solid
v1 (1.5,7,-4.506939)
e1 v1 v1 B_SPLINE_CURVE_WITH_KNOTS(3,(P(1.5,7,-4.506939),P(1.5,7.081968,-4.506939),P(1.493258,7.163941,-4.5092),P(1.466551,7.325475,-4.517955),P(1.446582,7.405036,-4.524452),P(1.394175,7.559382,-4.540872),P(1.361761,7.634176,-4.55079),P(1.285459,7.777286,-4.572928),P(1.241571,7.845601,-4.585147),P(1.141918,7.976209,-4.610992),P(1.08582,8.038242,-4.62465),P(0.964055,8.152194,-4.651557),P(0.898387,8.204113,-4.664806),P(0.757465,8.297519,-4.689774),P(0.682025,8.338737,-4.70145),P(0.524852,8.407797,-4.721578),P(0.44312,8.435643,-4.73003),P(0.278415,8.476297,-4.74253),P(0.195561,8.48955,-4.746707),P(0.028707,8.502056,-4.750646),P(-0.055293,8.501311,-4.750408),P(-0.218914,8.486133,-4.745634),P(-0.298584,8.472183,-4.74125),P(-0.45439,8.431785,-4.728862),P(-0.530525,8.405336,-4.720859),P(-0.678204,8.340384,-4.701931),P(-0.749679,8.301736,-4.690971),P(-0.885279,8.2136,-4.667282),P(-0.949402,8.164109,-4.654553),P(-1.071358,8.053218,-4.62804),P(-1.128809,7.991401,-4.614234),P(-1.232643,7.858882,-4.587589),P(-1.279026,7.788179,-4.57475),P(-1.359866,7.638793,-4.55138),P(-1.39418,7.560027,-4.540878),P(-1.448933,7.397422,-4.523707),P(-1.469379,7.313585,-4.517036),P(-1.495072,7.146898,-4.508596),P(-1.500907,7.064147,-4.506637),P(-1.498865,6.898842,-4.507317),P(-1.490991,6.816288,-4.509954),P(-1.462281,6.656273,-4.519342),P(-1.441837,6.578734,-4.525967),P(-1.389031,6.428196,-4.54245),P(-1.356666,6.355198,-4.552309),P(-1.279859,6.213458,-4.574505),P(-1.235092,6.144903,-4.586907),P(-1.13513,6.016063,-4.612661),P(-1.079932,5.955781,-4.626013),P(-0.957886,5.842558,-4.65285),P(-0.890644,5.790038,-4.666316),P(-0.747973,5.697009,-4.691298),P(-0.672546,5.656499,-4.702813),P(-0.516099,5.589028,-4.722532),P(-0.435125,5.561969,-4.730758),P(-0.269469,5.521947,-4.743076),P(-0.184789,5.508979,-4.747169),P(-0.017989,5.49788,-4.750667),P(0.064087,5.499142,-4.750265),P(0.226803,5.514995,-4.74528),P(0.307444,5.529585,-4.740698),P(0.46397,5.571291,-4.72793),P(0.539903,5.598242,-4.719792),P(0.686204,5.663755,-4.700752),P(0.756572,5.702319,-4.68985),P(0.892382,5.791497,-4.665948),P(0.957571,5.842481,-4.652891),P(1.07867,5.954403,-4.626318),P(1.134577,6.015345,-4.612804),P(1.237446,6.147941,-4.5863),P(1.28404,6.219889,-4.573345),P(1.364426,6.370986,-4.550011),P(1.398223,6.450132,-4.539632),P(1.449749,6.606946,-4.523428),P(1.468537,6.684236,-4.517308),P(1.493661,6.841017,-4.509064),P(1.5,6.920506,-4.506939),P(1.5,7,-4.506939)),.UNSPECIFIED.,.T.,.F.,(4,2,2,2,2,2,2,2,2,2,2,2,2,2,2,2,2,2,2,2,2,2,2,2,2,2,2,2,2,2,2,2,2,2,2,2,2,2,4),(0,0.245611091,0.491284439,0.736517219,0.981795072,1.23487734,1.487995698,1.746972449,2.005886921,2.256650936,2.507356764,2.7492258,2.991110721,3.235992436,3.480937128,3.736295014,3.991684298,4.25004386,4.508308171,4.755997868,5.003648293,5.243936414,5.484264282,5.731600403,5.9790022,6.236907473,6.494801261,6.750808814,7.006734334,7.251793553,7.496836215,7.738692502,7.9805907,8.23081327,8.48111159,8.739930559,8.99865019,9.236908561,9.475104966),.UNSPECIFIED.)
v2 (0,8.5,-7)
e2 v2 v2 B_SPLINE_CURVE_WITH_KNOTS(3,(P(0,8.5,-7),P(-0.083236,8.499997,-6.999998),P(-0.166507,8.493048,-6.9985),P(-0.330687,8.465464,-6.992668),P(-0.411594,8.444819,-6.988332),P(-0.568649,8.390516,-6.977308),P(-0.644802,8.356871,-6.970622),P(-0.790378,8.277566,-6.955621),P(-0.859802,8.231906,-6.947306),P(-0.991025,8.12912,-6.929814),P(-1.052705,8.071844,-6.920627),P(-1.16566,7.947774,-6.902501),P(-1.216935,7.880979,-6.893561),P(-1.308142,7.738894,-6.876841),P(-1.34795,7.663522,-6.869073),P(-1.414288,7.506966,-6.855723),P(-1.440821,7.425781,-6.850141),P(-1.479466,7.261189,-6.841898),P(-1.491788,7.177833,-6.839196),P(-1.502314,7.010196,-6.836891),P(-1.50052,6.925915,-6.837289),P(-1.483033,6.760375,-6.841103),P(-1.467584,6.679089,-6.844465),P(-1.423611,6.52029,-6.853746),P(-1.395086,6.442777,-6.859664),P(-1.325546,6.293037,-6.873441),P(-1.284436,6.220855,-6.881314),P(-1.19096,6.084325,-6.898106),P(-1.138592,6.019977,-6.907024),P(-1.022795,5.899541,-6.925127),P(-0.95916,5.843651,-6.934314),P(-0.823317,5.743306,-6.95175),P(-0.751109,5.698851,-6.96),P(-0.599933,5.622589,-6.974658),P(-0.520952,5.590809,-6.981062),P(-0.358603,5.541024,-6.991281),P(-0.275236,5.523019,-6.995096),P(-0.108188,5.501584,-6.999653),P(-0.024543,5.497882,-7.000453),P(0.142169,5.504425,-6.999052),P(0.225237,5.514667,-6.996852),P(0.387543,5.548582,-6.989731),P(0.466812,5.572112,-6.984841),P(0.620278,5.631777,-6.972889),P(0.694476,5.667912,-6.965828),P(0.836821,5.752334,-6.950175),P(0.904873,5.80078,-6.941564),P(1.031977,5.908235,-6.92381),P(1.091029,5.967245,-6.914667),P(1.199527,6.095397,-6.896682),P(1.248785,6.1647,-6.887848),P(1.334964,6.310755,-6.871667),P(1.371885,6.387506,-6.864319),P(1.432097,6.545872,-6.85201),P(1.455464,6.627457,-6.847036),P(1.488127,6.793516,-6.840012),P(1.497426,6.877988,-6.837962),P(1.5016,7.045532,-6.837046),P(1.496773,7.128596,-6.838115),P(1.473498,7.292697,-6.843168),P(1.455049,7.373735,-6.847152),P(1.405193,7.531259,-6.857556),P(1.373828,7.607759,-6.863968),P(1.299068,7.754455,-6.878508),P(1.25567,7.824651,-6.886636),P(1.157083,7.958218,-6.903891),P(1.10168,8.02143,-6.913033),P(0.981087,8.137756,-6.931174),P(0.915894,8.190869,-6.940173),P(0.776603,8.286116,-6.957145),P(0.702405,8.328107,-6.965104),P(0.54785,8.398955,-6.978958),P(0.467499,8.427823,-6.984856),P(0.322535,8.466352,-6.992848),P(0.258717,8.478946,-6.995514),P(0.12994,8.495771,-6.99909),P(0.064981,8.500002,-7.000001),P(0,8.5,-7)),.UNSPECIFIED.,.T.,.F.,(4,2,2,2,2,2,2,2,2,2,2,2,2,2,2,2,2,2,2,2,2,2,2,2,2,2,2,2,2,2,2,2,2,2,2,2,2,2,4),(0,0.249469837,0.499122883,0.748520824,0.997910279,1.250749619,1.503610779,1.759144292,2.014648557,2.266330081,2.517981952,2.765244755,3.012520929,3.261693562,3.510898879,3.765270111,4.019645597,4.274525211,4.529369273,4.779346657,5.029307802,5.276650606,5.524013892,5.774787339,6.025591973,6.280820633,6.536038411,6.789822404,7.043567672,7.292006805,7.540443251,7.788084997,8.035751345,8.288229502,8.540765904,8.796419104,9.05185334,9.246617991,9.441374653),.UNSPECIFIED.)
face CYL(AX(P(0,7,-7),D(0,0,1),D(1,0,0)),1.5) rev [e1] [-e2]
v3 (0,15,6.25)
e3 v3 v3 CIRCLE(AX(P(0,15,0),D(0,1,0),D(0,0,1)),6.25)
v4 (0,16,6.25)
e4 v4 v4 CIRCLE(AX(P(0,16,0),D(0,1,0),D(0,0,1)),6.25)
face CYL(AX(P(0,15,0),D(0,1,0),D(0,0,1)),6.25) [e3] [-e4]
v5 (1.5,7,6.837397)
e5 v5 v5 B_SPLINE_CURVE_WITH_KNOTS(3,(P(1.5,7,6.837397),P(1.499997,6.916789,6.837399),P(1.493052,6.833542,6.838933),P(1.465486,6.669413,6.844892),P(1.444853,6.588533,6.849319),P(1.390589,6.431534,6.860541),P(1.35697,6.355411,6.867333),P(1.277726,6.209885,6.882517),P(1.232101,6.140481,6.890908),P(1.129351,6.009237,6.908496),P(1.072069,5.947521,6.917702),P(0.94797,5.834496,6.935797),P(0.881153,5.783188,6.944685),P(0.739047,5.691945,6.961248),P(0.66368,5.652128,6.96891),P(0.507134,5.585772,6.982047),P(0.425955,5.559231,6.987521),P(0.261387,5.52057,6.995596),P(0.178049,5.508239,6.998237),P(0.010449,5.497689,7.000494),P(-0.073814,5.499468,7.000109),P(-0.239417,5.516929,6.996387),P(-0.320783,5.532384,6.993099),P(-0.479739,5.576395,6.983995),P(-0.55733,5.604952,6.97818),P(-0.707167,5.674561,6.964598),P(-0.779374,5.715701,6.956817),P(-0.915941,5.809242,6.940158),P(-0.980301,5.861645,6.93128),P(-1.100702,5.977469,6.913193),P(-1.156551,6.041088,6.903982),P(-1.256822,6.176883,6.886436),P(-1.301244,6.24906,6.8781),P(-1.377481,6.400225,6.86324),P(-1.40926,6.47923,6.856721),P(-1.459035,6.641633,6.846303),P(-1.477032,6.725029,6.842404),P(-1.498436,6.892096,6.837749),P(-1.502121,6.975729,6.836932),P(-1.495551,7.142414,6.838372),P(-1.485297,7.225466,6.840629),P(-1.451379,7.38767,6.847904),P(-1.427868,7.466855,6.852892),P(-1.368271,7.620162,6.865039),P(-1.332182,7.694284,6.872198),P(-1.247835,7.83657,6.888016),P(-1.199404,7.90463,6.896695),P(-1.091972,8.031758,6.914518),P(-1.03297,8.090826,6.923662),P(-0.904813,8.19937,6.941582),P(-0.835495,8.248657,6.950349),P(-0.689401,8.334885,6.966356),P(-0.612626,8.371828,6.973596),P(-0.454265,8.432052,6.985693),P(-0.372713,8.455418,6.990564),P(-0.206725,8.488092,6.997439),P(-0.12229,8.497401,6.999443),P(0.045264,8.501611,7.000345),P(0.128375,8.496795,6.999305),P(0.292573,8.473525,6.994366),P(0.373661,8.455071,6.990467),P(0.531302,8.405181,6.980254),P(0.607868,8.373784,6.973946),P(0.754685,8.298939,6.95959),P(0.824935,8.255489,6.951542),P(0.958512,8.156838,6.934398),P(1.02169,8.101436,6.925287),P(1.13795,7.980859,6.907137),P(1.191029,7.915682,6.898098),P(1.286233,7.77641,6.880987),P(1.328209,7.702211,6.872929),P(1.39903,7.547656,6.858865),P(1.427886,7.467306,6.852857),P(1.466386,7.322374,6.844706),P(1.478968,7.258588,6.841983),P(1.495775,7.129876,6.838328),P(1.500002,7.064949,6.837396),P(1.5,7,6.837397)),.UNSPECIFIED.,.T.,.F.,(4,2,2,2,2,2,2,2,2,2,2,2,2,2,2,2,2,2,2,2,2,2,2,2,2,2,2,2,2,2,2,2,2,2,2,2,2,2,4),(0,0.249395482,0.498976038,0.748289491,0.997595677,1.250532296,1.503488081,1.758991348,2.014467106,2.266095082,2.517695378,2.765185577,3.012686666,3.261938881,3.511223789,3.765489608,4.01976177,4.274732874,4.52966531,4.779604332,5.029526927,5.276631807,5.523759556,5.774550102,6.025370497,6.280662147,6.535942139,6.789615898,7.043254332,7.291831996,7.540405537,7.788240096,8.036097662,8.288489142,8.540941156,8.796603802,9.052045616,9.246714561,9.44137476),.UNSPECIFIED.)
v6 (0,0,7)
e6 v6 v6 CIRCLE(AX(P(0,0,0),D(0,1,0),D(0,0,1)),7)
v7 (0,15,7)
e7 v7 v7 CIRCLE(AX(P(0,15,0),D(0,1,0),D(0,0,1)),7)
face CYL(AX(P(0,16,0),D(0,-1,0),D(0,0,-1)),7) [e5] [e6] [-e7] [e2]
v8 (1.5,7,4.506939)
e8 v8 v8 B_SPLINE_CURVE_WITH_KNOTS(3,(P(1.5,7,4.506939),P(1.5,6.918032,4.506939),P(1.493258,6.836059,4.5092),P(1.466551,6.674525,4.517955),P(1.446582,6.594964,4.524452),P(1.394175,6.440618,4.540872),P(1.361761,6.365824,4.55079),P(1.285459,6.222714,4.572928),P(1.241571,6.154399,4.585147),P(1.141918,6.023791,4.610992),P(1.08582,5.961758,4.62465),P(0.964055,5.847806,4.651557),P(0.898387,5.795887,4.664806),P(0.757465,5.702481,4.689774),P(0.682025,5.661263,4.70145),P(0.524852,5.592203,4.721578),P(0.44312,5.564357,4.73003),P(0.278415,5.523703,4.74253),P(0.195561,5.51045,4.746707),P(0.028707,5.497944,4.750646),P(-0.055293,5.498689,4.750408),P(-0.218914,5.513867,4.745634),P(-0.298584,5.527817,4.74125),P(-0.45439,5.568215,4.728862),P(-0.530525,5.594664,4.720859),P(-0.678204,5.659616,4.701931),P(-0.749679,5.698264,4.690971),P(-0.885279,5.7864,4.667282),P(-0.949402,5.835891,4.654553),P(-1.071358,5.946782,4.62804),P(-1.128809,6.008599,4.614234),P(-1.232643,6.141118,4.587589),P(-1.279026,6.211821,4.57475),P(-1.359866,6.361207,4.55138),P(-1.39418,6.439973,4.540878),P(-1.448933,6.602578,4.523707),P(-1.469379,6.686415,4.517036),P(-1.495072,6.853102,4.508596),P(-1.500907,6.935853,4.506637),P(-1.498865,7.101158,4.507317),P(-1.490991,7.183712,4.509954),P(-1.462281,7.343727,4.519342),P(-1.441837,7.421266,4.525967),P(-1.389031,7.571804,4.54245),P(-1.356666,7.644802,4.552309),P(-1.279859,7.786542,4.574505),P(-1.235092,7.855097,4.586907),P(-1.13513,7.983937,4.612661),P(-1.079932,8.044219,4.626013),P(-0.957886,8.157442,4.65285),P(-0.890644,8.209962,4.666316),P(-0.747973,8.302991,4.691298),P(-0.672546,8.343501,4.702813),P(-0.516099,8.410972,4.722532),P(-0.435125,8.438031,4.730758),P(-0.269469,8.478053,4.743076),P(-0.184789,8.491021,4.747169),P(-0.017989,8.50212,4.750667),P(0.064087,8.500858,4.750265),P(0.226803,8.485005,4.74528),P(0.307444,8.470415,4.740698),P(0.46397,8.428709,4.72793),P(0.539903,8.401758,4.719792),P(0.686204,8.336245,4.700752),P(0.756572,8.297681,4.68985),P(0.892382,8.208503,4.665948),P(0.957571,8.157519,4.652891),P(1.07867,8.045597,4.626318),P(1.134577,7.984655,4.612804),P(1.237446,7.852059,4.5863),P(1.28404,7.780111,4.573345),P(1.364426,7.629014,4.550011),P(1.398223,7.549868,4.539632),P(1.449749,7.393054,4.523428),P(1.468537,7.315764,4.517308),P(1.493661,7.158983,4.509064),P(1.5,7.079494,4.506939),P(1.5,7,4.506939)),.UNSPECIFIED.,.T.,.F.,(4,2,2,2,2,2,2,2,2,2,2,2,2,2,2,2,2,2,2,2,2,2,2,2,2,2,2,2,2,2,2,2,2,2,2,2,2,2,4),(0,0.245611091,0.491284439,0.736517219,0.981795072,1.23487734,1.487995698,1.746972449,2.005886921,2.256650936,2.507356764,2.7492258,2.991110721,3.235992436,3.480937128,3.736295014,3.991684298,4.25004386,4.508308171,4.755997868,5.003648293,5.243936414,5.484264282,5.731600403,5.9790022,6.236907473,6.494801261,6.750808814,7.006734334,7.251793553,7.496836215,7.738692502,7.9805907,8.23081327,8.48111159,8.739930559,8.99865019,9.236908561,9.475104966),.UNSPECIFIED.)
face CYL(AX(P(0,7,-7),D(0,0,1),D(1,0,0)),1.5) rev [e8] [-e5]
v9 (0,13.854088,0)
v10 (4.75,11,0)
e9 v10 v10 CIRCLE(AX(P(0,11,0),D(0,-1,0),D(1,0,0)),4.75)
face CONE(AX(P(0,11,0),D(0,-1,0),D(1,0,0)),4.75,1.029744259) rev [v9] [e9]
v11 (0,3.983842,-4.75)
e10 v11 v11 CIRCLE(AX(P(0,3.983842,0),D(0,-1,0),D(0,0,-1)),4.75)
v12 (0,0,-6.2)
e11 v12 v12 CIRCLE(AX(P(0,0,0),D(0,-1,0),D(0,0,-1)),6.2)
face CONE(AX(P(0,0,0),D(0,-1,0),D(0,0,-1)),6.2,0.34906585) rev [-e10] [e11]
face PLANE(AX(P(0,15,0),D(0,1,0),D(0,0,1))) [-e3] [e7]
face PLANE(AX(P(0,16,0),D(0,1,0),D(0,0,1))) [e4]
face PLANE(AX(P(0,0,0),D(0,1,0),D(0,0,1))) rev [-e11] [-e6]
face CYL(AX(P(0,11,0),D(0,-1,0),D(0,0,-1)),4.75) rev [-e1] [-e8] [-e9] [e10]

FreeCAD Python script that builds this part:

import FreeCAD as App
import Part
import Sketcher
Q = App.Units.Quantity


def add_polygon(sketch, points):
    """Adds a closed chain of lines whose ends are joined by coincident constraints."""
    first, n = sketch.GeometryCount, len(points)
    for a, b in zip(points, points[1:] + points[:1]):
        sketch.addGeometry(Part.LineSegment(App.Vector(*a, 0), App.Vector(*b, 0)), False)
    for i in range(n):
        sketch.addConstraint(Sketcher.Constraint("Coincident", first + i, 2, first + (i + 1) % n, 1))

doc = App.newDocument("Part")
body = doc.addObject("PartDesign::Body", "Body")

# Sketch on XZ plane
sketch1 = doc.addObject("Sketcher::SketchObject", "Sketch")
body.addObject(sketch1)
sketch1.AttachmentSupport = (doc.XZ_Plane, [""])
sketch1.MapMode = "FlatFace"
sketch1.addGeometry(Part.Circle(App.Vector(0, 0, 0), App.Vector(0, 0, 1), 7), False)
sketch1.addConstraint(Sketcher.Constraint("Coincident", 0, 3, -1, 1))
sketch1.addConstraint(Sketcher.Constraint("Diameter", 0, Q("14 mm")))
pad1 = doc.addObject("PartDesign::Pad", "Pad")
body.addObject(pad1)
pad1.Profile = sketch1
pad1.Length = 16
pad1.Reversed = True

# Sketch on XY plane
sketch2 = doc.addObject("Sketcher::SketchObject", "Sketch001")
body.addObject(sketch2)
sketch2.AttachmentSupport = (doc.XY_Plane, [""])
sketch2.MapMode = "FlatFace"
sketch2.addGeometry(Part.Circle(App.Vector(0, 7, 0), App.Vector(0, 0, 1), 1.5), False)
sketch2.addConstraint(Sketcher.Constraint("PointOnObject", 0, 3, -2))
sketch2.addConstraint(Sketcher.Constraint("Diameter", 0, Q("3 mm")))
sketch2.addConstraint(Sketcher.Constraint("DistanceY", -1, 1, 0, 3, Q("7 mm")))
pocket1 = doc.addObject("PartDesign::Pocket", "Pocket")
body.addObject(pocket1)
pocket1.Profile = sketch2
pocket1.Type = "ThroughAll"
pocket1.Midplane = True

# Sketch on XZ plane
sketch3 = doc.addObject("Sketcher::SketchObject", "Sketch002")
body.addObject(sketch3)
sketch3.AttachmentSupport = (doc.XZ_Plane, [""])
sketch3.MapMode = "FlatFace"
sketch3.addGeometry(Part.Circle(App.Vector(0, 0, 0), App.Vector(0, 0, 1), 4.8), False)
sketch3.addConstraint(Sketcher.Constraint("Coincident", 0, 3, -1, 1))
sketch3.addConstraint(Sketcher.Constraint("Diameter", 0, Q("9.5 mm")))
pocket2 = doc.addObject("PartDesign::Pocket", "Pocket001")
body.addObject(pocket2)
pocket2.Profile = sketch3
pocket2.Length = 11

# Sketch on XY plane
sketch4 = doc.addObject("Sketcher::SketchObject", "Sketch003")
body.addObject(sketch4)
sketch4.AttachmentSupport = (doc.XY_Plane, [""])
sketch4.MapMode = "FlatFace"
add_polygon(sketch4, [(0, 13.9), (0, 11), (4.8, 11)])  # lines 0-2
sketch4.addConstraint(Sketcher.Constraint("Vertical", 0))
sketch4.addConstraint(Sketcher.Constraint("Horizontal", 1))
sketch4.addConstraint(Sketcher.Constraint("PointOnObject", 0, 2, -2))
sketch4.addConstraint(Sketcher.Constraint("Angle", 2, Q("149 deg")))
sketch4.addConstraint(Sketcher.Constraint("DistanceY", -1, 1, 0, 2, Q("11 mm")))
sketch4.addConstraint(Sketcher.Constraint("DistanceX", 1, 1, 1, 2, Q("4.75 mm")))
groove = doc.addObject("PartDesign::Groove", "Groove")
body.addObject(groove)
groove.Profile = sketch4
groove.ReferenceAxis = (sketch4, ["V_Axis"])
groove.Angle = 360

# Sketch on XY plane
sketch5 = doc.addObject("Sketcher::SketchObject", "Sketch004")
body.addObject(sketch5)
sketch5.AttachmentSupport = (doc.XY_Plane, [""])
sketch5.MapMode = "FlatFace"
add_polygon(sketch5, [(4.8, 4), (4.8, 0), (6.2, 0)])  # lines 0-2
sketch5.addConstraint(Sketcher.Constraint("Vertical", 0))
sketch5.addConstraint(Sketcher.Constraint("Horizontal", 1))
sketch5.addConstraint(Sketcher.Constraint("PointOnObject", 0, 2, -1))
sketch5.addConstraint(Sketcher.Constraint("Angle", 2, Q("110 deg")))
sketch5.addConstraint(Sketcher.Constraint("DistanceX", 1, 1, 1, 2, Q("1.45 mm")))
sketch5.addConstraint(Sketcher.Constraint("DistanceX", -1, 1, 1, 2, Q("6.2 mm")))
groove2 = doc.addObject("PartDesign::Groove", "Groove001")
body.addObject(groove2)
groove2.Profile = sketch5
groove2.ReferenceAxis = (sketch5, ["V_Axis"])
groove2.Angle = 360

# Sketch on XZ plane
sketch6 = doc.addObject("Sketcher::SketchObject", "Sketch005")
body.addObject(sketch6)
sketch6.AttachmentSupport = (doc.XZ_Plane, [""])
sketch6.MapMode = "FlatFace"
sketch6.AttachmentOffset = App.Placement(App.Vector(0, 0, -15), App.Rotation())
sketch6.addGeometry(Part.Circle(App.Vector(0, 0, 0), App.Vector(0, 0, 1), 7), False)
sketch6.addGeometry(Part.Circle(App.Vector(0, 0, 0), App.Vector(0, 0, 1), 6), False)
sketch6.addConstraint(Sketcher.Constraint("Coincident", 0, 3, -1, 1))
sketch6.addConstraint(Sketcher.Constraint("Coincident", 1, 3, -1, 1))
sketch6.addConstraint(Sketcher.Constraint("Diameter", 0, Q("14 mm")))
sketch6.addConstraint(Sketcher.Constraint("Diameter", 1, Q("12.5 mm")))
pocket3 = doc.addObject("PartDesign::Pocket", "Pocket002")
body.addObject(pocket3)
pocket3.Profile = sketch6
pocket3.Length = 1

doc.recompute()
